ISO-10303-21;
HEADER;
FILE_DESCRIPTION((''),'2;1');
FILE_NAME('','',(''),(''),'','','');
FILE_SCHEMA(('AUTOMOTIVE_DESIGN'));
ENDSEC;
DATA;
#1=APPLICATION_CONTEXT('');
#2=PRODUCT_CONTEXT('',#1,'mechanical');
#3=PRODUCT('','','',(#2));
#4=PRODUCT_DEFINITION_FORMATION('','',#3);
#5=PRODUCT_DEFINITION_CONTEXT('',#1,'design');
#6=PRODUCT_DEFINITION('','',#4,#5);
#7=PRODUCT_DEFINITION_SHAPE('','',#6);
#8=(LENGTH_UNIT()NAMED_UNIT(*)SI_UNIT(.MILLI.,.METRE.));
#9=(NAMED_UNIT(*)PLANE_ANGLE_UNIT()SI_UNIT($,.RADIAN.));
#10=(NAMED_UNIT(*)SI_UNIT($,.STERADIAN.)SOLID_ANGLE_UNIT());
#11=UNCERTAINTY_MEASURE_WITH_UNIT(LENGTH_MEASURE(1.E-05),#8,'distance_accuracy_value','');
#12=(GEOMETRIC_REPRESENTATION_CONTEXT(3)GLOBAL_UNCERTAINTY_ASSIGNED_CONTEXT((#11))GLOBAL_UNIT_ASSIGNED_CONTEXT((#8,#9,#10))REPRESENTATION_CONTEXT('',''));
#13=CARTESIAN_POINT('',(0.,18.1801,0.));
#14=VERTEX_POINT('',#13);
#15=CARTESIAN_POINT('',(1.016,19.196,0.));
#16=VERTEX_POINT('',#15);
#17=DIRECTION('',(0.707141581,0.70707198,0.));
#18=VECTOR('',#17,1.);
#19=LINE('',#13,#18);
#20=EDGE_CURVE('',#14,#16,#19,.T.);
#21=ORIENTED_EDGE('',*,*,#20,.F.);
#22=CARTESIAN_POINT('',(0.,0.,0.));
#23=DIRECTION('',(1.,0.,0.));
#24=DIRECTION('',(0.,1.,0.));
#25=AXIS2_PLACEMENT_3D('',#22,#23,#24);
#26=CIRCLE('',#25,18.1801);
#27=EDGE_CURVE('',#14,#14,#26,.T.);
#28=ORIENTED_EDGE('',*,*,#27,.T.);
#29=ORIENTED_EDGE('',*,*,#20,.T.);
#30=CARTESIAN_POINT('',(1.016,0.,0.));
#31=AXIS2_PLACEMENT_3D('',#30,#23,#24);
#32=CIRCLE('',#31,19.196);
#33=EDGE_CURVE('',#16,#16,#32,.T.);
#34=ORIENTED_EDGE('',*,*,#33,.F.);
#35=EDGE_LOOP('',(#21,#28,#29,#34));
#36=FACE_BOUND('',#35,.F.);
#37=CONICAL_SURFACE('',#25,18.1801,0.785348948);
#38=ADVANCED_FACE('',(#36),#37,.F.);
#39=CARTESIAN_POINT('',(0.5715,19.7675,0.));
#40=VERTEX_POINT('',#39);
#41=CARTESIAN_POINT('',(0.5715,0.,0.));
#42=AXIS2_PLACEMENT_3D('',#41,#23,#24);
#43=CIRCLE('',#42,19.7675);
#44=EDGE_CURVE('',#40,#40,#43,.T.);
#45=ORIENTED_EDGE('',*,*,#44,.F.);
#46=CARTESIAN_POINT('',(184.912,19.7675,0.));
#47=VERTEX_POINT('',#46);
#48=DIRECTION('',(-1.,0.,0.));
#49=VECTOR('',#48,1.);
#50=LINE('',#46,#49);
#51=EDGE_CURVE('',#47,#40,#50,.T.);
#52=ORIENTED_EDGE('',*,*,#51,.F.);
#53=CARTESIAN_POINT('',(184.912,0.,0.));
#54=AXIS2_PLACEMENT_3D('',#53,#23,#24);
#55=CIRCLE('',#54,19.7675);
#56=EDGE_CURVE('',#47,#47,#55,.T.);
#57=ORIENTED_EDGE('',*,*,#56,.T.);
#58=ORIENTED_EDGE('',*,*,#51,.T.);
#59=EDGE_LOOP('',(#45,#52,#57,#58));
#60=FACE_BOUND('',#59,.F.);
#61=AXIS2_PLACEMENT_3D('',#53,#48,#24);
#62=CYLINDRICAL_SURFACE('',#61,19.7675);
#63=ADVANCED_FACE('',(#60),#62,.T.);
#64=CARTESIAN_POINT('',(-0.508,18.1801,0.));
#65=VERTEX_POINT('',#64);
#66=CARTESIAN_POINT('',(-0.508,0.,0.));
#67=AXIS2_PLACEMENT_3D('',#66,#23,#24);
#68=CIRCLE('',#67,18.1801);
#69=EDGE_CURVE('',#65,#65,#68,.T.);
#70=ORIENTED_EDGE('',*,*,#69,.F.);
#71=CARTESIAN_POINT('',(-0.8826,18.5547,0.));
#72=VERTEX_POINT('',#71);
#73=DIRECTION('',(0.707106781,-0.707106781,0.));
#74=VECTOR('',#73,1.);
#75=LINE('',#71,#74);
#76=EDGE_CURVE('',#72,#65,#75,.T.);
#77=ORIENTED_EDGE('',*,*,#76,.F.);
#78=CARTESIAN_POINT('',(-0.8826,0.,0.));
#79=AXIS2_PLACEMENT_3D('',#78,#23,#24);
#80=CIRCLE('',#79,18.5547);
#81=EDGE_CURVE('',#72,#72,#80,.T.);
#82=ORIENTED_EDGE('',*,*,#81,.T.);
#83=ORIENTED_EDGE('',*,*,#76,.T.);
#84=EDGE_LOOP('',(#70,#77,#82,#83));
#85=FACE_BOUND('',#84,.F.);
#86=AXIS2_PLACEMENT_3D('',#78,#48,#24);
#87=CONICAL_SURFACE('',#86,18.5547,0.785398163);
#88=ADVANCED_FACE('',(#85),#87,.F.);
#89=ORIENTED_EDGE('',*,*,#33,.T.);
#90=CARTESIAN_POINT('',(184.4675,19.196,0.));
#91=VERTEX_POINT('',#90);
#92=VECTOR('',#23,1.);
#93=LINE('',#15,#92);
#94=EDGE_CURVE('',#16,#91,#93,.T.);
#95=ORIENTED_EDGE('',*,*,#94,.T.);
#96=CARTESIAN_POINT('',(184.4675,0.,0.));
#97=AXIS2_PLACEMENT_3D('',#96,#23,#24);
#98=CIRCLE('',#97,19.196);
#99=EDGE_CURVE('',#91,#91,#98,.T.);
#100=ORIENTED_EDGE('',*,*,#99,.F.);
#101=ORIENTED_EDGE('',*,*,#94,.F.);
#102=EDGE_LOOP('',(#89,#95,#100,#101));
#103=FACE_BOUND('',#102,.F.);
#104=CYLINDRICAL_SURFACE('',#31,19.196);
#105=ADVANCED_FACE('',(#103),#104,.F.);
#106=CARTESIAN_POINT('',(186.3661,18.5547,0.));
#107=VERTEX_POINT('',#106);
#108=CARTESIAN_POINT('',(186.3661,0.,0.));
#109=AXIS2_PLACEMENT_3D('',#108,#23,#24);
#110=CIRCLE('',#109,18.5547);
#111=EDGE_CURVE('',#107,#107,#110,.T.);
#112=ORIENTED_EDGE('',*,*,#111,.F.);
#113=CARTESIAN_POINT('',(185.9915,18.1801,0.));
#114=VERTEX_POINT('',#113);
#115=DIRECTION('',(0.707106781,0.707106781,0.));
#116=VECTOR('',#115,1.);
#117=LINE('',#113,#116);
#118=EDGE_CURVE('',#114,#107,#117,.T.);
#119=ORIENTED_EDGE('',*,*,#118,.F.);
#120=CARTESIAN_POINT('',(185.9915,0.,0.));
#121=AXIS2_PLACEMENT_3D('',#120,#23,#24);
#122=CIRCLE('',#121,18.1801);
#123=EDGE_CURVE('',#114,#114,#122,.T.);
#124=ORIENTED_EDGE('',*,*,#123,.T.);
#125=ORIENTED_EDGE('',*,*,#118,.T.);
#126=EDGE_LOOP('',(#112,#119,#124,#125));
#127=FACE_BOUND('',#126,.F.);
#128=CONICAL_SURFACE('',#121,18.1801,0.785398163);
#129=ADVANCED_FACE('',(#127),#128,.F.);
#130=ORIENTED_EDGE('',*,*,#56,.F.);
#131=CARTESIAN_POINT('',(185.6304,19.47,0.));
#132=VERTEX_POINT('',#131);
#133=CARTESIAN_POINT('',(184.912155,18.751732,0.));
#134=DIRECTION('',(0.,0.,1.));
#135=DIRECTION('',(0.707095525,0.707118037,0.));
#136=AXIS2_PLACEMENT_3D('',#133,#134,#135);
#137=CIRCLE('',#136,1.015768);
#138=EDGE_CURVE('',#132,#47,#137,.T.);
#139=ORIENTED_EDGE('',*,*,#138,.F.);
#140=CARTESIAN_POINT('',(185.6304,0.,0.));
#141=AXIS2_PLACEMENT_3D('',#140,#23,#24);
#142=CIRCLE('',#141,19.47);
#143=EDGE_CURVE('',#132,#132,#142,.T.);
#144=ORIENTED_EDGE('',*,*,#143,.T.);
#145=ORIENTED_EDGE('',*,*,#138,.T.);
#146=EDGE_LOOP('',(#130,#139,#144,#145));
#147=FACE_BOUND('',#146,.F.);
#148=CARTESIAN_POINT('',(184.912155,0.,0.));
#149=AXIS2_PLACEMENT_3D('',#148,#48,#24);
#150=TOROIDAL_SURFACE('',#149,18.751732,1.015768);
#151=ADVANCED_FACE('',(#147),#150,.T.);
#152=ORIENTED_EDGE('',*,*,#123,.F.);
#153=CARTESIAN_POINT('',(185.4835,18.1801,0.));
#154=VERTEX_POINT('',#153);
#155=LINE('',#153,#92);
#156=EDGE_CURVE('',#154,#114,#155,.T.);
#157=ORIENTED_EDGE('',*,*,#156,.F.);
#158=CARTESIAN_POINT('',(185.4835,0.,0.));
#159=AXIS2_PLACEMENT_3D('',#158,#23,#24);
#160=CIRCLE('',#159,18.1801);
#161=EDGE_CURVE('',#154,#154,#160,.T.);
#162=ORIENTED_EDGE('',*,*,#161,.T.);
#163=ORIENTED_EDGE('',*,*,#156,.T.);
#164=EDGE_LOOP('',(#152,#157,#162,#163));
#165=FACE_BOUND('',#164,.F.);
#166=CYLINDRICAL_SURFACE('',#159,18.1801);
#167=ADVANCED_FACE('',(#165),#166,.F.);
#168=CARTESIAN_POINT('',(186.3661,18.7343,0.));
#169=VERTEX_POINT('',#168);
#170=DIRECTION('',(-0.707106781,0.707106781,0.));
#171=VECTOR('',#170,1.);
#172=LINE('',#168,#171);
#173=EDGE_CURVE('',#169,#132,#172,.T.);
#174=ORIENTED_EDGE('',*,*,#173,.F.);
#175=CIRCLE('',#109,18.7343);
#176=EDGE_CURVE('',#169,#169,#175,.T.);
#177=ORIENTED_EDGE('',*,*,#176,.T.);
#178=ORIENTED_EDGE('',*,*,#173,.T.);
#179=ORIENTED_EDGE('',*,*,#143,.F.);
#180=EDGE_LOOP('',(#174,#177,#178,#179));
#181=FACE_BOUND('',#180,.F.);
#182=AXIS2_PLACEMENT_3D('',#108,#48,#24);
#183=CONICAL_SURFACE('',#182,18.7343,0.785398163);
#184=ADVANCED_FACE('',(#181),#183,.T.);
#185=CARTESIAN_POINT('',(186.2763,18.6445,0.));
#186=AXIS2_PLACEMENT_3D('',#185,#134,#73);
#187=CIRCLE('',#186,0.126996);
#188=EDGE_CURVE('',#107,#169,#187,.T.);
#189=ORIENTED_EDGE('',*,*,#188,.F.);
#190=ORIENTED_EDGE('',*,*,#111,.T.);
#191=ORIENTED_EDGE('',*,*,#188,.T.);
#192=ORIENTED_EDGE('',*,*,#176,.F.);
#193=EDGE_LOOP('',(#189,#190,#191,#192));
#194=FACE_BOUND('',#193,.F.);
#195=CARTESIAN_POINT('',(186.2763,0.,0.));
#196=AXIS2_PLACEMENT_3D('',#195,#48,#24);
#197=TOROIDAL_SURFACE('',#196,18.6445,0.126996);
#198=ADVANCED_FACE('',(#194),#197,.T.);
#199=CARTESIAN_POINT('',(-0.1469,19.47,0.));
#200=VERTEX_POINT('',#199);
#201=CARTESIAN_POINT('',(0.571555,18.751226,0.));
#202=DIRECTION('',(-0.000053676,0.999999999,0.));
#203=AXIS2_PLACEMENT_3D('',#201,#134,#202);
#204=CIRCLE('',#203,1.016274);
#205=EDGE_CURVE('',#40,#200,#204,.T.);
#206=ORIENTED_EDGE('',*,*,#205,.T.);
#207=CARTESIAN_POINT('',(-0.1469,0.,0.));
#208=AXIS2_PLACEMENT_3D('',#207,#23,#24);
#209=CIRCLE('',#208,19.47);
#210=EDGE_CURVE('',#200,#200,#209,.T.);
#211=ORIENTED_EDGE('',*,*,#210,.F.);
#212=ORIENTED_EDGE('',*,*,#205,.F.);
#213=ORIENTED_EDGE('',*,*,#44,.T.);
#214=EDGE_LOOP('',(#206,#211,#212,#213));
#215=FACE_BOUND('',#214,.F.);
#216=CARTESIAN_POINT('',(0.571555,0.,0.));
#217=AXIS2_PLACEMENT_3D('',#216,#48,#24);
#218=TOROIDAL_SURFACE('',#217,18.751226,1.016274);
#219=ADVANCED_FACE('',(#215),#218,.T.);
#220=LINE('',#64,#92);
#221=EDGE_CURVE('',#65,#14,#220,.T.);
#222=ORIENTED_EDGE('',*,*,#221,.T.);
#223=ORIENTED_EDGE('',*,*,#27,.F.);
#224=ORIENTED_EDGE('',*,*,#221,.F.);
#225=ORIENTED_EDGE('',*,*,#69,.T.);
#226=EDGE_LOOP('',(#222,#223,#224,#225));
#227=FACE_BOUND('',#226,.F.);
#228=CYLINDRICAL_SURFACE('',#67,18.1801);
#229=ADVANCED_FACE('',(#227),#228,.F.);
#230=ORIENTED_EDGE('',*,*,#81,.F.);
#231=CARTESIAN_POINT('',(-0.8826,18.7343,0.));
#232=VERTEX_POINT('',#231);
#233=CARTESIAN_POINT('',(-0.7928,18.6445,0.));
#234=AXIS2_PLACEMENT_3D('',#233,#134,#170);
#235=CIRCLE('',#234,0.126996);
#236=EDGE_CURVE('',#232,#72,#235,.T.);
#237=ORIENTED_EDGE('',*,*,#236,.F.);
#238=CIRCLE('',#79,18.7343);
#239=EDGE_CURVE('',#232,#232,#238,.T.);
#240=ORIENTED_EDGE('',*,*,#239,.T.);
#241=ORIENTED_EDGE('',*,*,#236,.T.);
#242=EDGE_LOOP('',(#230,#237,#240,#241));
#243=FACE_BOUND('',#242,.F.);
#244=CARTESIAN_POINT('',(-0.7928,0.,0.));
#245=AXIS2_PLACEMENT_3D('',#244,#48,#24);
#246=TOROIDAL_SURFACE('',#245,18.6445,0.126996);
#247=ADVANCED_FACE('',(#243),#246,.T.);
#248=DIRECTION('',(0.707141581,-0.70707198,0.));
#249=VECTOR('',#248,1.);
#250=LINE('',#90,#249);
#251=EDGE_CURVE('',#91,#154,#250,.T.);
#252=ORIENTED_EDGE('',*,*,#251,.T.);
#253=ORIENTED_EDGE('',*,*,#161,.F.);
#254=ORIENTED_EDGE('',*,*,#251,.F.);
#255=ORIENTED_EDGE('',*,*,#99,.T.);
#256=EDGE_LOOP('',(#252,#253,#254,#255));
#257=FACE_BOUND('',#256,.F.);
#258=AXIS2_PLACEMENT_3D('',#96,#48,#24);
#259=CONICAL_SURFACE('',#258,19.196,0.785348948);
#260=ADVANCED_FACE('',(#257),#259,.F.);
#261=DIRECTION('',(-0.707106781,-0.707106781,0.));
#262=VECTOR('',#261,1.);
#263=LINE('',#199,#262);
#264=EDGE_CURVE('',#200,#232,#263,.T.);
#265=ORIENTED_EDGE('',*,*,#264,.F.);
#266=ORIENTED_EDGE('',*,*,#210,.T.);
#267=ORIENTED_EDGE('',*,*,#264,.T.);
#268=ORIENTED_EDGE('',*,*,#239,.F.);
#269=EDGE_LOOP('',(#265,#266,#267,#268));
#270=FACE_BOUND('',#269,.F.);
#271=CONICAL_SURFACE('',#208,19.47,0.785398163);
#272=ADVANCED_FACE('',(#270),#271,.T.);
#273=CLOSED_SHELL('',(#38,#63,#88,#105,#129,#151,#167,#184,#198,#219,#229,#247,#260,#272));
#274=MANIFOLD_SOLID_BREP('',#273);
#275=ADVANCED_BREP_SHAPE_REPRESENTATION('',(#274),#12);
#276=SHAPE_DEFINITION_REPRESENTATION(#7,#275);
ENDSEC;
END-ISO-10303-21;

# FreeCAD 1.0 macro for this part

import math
import FreeCAD as App
import Part
import Sketcher
from FreeCAD import Vector
Q = App.Units.Quantity

doc = App.newDocument("Part")
params = doc.addObject("Spreadsheet::Sheet", "Params")
for row, (alias, value) in enumerate([
    ("sketch1_radius", "0.04 in"),
    ("sketch1_radius2", "0.005 in"),
    ("sketch1_width", "0.02 in"),
    ("revolution_angle", "360 deg"),
], start=1):
    params.set(f"A{row}", alias)
    params.set(f"B{row}", "=" + value)
    params.setAlias(f"B{row}", alias)

body = doc.addObject("PartDesign::Body", "Body")

sketch1 = body.newObject("Sketcher::SketchObject", "Sketch")
sketch1.AttachmentSupport = (doc.getObject("XY_Plane"), [""])
sketch1.MapMode = "FlatFace"
sketch1.addGeometry([
    Part.LineSegment(Vector(-0.1469, 19.47, 0), Vector(-0.8826, 18.7343, 0)),
    Part.ArcOfCircle(Part.Circle(Vector(-0.7928, 18.6445, 0), Vector(0, 0, 1), 0.126996), math.radians(135), math.radians(225)),
    Part.LineSegment(Vector(-0.8826, 18.5547, 0), Vector(-0.508, 18.1801, 0)),
    Part.LineSegment(Vector(-0.508, 18.1801, 0), Vector(0, 18.1801, 0)),
    Part.LineSegment(Vector(0, 18.1801, 0), Vector(1.016, 19.196, 0)),
    Part.LineSegment(Vector(1.016, 19.196, 0), Vector(184.4675, 19.196, 0)),
    Part.LineSegment(Vector(184.4675, 19.196, 0), Vector(185.4835, 18.1801, 0)),
    Part.LineSegment(Vector(185.4835, 18.1801, 0), Vector(185.9915, 18.1801, 0)),
    Part.LineSegment(Vector(185.9915, 18.1801, 0), Vector(186.3661, 18.5547, 0)),
    Part.ArcOfCircle(Part.Circle(Vector(186.2763, 18.6445, 0), Vector(0, 0, 1), 0.126996), math.radians(-45), math.radians(45)),
    Part.LineSegment(Vector(186.3661, 18.7343, 0), Vector(185.6304, 19.47, 0)),
    Part.ArcOfCircle(Part.Circle(Vector(184.912, 18.7515, 0), Vector(0, 0, 1), 1.016042), math.radians(45.003987), math.radians(90)),
    Part.LineSegment(Vector(184.912, 19.7675, 0), Vector(0.5715, 19.7675, 0)),
    Part.ArcOfCircle(Part.Circle(Vector(0.5715, 18.7515, 0), Vector(0, 0, 1), 1.016), math.radians(90), math.radians(134.996013)),
], False)
sketch1.addConstraint([
    Sketcher.Constraint("Tangent", 0, 2, 1, 1),
    Sketcher.Constraint("Tangent", 1, 2, 2, 1),
    Sketcher.Constraint("Coincident", 2, 2, 3, 1),
    Sketcher.Constraint("Coincident", 3, 2, 4, 1),
    Sketcher.Constraint("Coincident", 4, 2, 5, 1),
    Sketcher.Constraint("Coincident", 5, 2, 6, 1),
    Sketcher.Constraint("Coincident", 6, 2, 7, 1),
    Sketcher.Constraint("Coincident", 7, 2, 8, 1),
    Sketcher.Constraint("Tangent", 8, 2, 9, 1),
    Sketcher.Constraint("Tangent", 9, 2, 10, 1),
    Sketcher.Constraint("Tangent", 10, 2, 11, 1),
    Sketcher.Constraint("Tangent", 11, 2, 12, 1),
    Sketcher.Constraint("Tangent", 12, 2, 13, 1),
    Sketcher.Constraint("Tangent", 13, 2, 0, 1),
    Sketcher.Constraint("Horizontal", 3),
    Sketcher.Constraint("Horizontal", 5),
    Sketcher.Constraint("Horizontal", 7),
    Sketcher.Constraint("Horizontal", 12),
    Sketcher.Constraint("Equal", 1, 9),
    Sketcher.Constraint("Equal", 11, 13),
    Sketcher.Constraint("PointOnObject", 3, 2, -2),
    Sketcher.Constraint("Perpendicular", 0, 2),
    Sketcher.Constraint("Perpendicular", 2, 4),
    Sketcher.Constraint("Perpendicular", 4, 6),
    Sketcher.Constraint("Perpendicular", 6, 8),
    Sketcher.Constraint("Perpendicular", 8, 10),
    Sketcher.Constraint("Horizontal", 1, 3, 9, 3),
    Sketcher.Constraint("Horizontal", 3, 2, 6, 2),
    Sketcher.Constraint("Horizontal", 1, 2, 8, 2),
    Sketcher.Constraint("Equal", 3, 7),
    Sketcher.Constraint("Radius", 11, Q("0.04 in")),
    Sketcher.Constraint("Radius", 1, Q("0.005 in")),
    Sketcher.Constraint("DistanceX", 3, 1, 3, 2, Q("0.02 in")),
    Sketcher.Constraint("DistanceX", 2, 2, 11, 3, Q("7.3 in")),
    Sketcher.Constraint("DistanceX", -1, 1, 4, 2, Q("0.04 in")),
    Sketcher.Constraint("DistanceX", 5, 1, 5, 2, Q("7.2225 in")),
    Sketcher.Constraint("DistanceY", 6, 2, 11, 2, Q("0.0625 in")),
    Sketcher.Constraint("DistanceY", -1, 1, 1, 2, Q("0.7305 in")),
])
sketch1.setExpression("Constraints[30]", "Params.sketch1_radius")
sketch1.setExpression("Constraints[31]", "Params.sketch1_radius2")
sketch1.setExpression("Constraints[32]", "Params.sketch1_width")
revolution = body.newObject("PartDesign::Revolution", "Revolution")
revolution.Profile = sketch1
revolution.ReferenceAxis = (sketch1, ["H_Axis"])
revolution.setExpression("Angle", "Params.revolution_angle")

doc.recompute()
